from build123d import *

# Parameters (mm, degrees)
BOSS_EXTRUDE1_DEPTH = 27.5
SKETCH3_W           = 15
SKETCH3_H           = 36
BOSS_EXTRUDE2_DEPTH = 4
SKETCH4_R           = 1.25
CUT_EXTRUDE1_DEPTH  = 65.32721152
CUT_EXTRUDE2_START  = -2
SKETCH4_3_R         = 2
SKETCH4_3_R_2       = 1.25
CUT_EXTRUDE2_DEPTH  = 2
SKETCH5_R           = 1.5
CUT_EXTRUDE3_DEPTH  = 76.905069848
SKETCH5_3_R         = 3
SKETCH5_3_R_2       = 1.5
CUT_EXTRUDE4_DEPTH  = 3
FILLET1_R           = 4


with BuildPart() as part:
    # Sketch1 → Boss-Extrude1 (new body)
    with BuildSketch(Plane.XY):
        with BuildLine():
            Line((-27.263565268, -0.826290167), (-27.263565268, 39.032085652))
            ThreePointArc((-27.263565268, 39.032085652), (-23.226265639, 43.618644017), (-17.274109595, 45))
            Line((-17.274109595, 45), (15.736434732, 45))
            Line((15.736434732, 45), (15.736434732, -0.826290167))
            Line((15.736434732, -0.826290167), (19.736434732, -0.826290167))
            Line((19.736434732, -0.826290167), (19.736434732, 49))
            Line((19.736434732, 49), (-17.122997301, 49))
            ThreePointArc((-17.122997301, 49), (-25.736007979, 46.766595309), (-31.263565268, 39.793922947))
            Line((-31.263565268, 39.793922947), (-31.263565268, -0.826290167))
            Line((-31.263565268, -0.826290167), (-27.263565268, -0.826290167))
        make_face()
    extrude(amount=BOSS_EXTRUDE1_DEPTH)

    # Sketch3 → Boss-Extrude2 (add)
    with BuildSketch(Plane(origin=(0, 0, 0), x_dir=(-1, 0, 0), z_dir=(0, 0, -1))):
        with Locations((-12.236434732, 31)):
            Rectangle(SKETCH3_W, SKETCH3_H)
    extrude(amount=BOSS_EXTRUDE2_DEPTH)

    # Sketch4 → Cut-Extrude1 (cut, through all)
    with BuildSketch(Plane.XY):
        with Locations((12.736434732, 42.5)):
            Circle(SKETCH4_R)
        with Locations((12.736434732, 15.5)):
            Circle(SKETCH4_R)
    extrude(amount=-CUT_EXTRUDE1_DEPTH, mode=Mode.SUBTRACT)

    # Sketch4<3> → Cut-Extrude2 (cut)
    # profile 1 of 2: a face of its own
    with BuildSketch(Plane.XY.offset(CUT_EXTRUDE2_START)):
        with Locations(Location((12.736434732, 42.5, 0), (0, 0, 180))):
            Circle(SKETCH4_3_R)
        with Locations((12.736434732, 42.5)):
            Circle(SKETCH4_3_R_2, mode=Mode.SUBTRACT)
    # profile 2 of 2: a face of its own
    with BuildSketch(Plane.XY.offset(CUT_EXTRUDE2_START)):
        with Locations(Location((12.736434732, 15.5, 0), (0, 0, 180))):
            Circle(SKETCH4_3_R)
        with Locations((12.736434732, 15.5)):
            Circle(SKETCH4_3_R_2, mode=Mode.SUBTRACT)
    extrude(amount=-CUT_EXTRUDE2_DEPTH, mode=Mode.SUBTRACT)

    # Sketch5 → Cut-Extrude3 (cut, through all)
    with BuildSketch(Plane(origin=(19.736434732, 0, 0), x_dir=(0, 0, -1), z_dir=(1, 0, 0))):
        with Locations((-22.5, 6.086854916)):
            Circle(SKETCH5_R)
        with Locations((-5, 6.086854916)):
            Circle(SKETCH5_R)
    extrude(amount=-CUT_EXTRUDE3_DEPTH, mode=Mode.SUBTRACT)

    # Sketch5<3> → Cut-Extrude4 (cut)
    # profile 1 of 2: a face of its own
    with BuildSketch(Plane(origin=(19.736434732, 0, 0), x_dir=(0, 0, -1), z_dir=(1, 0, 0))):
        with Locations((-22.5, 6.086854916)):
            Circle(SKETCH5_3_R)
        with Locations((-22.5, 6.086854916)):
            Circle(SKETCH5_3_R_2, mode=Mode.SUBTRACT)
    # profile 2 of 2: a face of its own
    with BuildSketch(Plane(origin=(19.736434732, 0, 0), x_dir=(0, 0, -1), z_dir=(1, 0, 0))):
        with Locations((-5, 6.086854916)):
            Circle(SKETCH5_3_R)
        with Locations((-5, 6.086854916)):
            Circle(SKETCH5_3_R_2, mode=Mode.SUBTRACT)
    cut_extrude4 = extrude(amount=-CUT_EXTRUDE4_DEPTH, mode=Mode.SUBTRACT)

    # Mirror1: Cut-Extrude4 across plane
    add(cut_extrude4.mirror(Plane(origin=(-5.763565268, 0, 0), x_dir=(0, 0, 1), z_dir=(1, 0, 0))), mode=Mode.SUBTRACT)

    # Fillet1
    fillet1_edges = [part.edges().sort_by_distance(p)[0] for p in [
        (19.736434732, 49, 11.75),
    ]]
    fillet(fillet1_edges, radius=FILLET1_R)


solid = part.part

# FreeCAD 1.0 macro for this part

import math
import FreeCAD as App
import Part
import Sketcher
from FreeCAD import Vector


def edges_at(feature, points):
    """Names of the edges that pass closest to the given points."""
    edges = feature.Shape.Edges
    near = lambda p: min(range(len(edges)), key=lambda i: edges[i].distToShape(Part.Vertex(*p))[0])
    return sorted({f"Edge{near(p) + 1}" for p in points})


def add_polygon(sketch, points):
    """Adds a closed chain of lines whose ends are joined by coincident constraints."""
    first, n = sketch.GeometryCount, len(points)
    for a, b in zip(points, points[1:] + points[:1]):
        sketch.addGeometry(Part.LineSegment(App.Vector(*a, 0), App.Vector(*b, 0)), False)
    for i in range(n):
        sketch.addConstraint(Sketcher.Constraint("Coincident", first + i, 2, first + (i + 1) % n, 1))

doc = App.newDocument("Part")
params = doc.addObject("Spreadsheet::Sheet", "Params")
for row, (alias, value) in enumerate([
    ("sketch1_radius", "10 mm"),
    ("sketch1_radius2", "14 mm"),
    ("sketch1_width", "4 mm"),
    ("pad1_length", "27.5 mm"),
    ("sketch2_width", "15 mm"),
    ("sketch2_height", "36 mm"),
    ("pad2_length", "4 mm"),
    ("sketch3_diameter", "2.5 mm"),
    ("sketch4_diameter", "4 mm"),
    ("sketch4_diameter2", "2.5 mm"),
    ("pocket2_length", "2 mm"),
    ("sketch5_diameter", "3 mm"),
    ("sketch6_diameter", "6 mm"),
    ("sketch6_diameter2", "3 mm"),
    ("pocket4_length", "3 mm"),
    ("fillet_radius", "4 mm"),
], start=1):
    params.set(f"A{row}", alias)
    params.set(f"B{row}", "=" + value)
    params.setAlias(f"B{row}", alias)

body = doc.addObject("PartDesign::Body", "Body")

sketch1 = body.newObject("Sketcher::SketchObject", "Sketch")
sketch1.AttachmentSupport = (doc.getObject("XY_Plane"), [""])
sketch1.MapMode = "FlatFace"
sketch1.addGeometry([
    Part.LineSegment(Vector(-27.3, -0.8, 0), Vector(-27.3, 39, 0)),
    Part.ArcOfCircle(Part.Circle(Vector(-18.1, 35, 0), Vector(0, 0, 1), 10), math.radians(85), math.radians(156)),
    Part.LineSegment(Vector(-17.3, 45, 0), Vector(15.7, 45, 0)),
    Part.LineSegment(Vector(15.7, 45, 0), Vector(15.7, -0.8, 0)),
    Part.LineSegment(Vector(15.7, -0.8, 0), Vector(19.7, -0.8, 0)),
    Part.LineSegment(Vector(19.7, -0.8, 0), Vector(19.7, 49, 0)),
    Part.LineSegment(Vector(19.7, 49, 0), Vector(-17.1, 49, 0)),
    Part.ArcOfCircle(Part.Circle(Vector(-18.1, 35, 0), Vector(0, 0, 1), 14), math.radians(86), math.radians(160)),
    Part.LineSegment(Vector(-31.3, 39.8, 0), Vector(-31.3, -0.8, 0)),
    Part.LineSegment(Vector(-31.3, -0.8, 0), Vector(-27.3, -0.8, 0)),
], False)
sketch1.addConstraint([
    Sketcher.Constraint("Coincident", 0, 2, 1, 2),
    Sketcher.Constraint("Coincident", 1, 1, 2, 1),
    Sketcher.Constraint("Coincident", 2, 2, 3, 1),
    Sketcher.Constraint("Coincident", 3, 2, 4, 1),
    Sketcher.Constraint("Coincident", 4, 2, 5, 1),
    Sketcher.Constraint("Coincident", 5, 2, 6, 1),
    Sketcher.Constraint("Coincident", 6, 2, 7, 1),
    Sketcher.Constraint("Coincident", 7, 2, 8, 1),
    Sketcher.Constraint("Coincident", 8, 2, 9, 1),
    Sketcher.Constraint("Coincident", 9, 2, 0, 1),
    Sketcher.Constraint("Vertical", 0),
    Sketcher.Constraint("Horizontal", 2),
    Sketcher.Constraint("Vertical", 3),
    Sketcher.Constraint("Horizontal", 4),
    Sketcher.Constraint("Vertical", 5),
    Sketcher.Constraint("Horizontal", 6),
    Sketcher.Constraint("Vertical", 8),
    Sketcher.Constraint("Horizontal", 9),
    Sketcher.Constraint("Coincident", 7, 3, 1, 3),
    Sketcher.Constraint("Horizontal", 4, 2, 8, 2),
    Sketcher.Constraint("Equal", 4, 9),
    Sketcher.Constraint("Radius", 1, 10.0),
    Sketcher.Constraint("Radius", 7, 14.0),
    Sketcher.Constraint("DistanceX", 4, 1, 4, 2, 4.0),
    Sketcher.Constraint("DistanceY", -1, 1, 1, 1, 45.0),
    Sketcher.Constraint("DistanceY", -1, 1, 5, 2, 49.0),
    Sketcher.Constraint("DistanceX", 0, 2, 2, 2, 43.0),
    Sketcher.Constraint("DistanceY", 3, 2, 3, 1, 45.82629),
    Sketcher.Constraint("DistanceX", 2, 1, 2, 2, 33.010544),
    Sketcher.Constraint("DistanceX", 6, 2, 6, 1, 36.859432),
    Sketcher.Constraint("DistanceX", 1, 1, -1, 1, 17.27411),
])
sketch1.setExpression("Constraints[21]", "Params.sketch1_radius")
sketch1.setExpression("Constraints[22]", "Params.sketch1_radius2")
sketch1.setExpression("Constraints[23]", "Params.sketch1_width")
pad1 = body.newObject("PartDesign::Pad", "Pad")
pad1.Profile = sketch1
pad1.setExpression("Length", "Params.pad1_length")

sketch2 = body.newObject("Sketcher::SketchObject", "Sketch001")
sketch2.AttachmentSupport = (doc.getObject("XY_Plane"), [""])
sketch2.MapMode = "FlatFace"
add_polygon(sketch2, [(20, 49), (20, 13), (5, 13), (5, 49)])
sketch2.addConstraint([
    Sketcher.Constraint("Vertical", 0),
    Sketcher.Constraint("Horizontal", 1),
    Sketcher.Constraint("Vertical", 2),
    Sketcher.Constraint("Horizontal", 3),
    Sketcher.Constraint("DistanceX", 1, 2, 1, 1, 15.0),
    Sketcher.Constraint("DistanceY", 0, 2, 0, 1, 36.0),
    Sketcher.Constraint("DistanceY", -1, 1, 0, 2, 13.0),
    Sketcher.Constraint("DistanceX", -1, 1, 0, 2, 19.736435),
])
sketch2.setExpression("Constraints[8]", "Params.sketch2_width")
sketch2.setExpression("Constraints[9]", "Params.sketch2_height")
pad2 = body.newObject("PartDesign::Pad", "Pad001")
pad2.Profile = sketch2
pad2.setExpression("Length", "Params.pad2_length")
pad2.Reversed = True

sketch3 = body.newObject("Sketcher::SketchObject", "Sketch002")
sketch3.AttachmentSupport = (doc.getObject("XY_Plane"), [""])
sketch3.MapMode = "FlatFace"
sketch3.addGeometry([
    Part.Circle(Vector(12.7, 42.5, 0), Vector(0, 0, 1), 1.2),
    Part.Circle(Vector(12.7, 15.5, 0), Vector(0, 0, 1), 1.2),
], False)
sketch3.addConstraint([
    Sketcher.Constraint("Equal", 0, 1),
    Sketcher.Constraint("Vertical", 0, 3, 1, 3),
    Sketcher.Constraint("Diameter", 0, 2.5),
    Sketcher.Constraint("DistanceY", 1, 3, 0, 3, 27.0),
    Sketcher.Constraint("DistanceY", -1, 1, 0, 3, 42.5),
    Sketcher.Constraint("DistanceX", -1, 1, 0, 3, 12.736435),
])
sketch3.setExpression("Constraints[2]", "Params.sketch3_diameter")
pocket1 = body.newObject("PartDesign::Pocket", "Pocket")
pocket1.Profile = sketch3
pocket1.Type = "ThroughAll"

sketch4 = body.newObject("Sketcher::SketchObject", "Sketch003")
sketch4.AttachmentSupport = (doc.getObject("XY_Plane"), [""])
sketch4.MapMode = "FlatFace"
sketch4.AttachmentOffset = App.Placement(Vector(0, 0, -2), App.Rotation())
sketch4.addGeometry([
    Part.Circle(Vector(12.7, 42.5, 0), Vector(0, 0, 1), 2),
    Part.Circle(Vector(12.7, 42.5, 0), Vector(0, 0, 1), 1.2),
    Part.Circle(Vector(12.7, 15.5, 0), Vector(0, 0, 1), 2),
    Part.Circle(Vector(12.7, 15.5, 0), Vector(0, 0, 1), 1.2),
], False)
sketch4.addConstraint([
    Sketcher.Constraint("Coincident", 1, 3, 0, 3),
    Sketcher.Constraint("Coincident", 3, 3, 2, 3),
    Sketcher.Constraint("Equal", 0, 2),
    Sketcher.Constraint("Equal", 1, 3),
    Sketcher.Constraint("Vertical", 1, 3, 2, 3),
    Sketcher.Constraint("Diameter", 0, 4.0),
    Sketcher.Constraint("Diameter", 1, 2.5),
    Sketcher.Constraint("DistanceY", 2, 3, 0, 3, 27.0),
    Sketcher.Constraint("DistanceY", -1, 1, 0, 3, 42.5),
    Sketcher.Constraint("DistanceX", -1, 1, 0, 3, 12.736435),
])
sketch4.setExpression("Constraints[5]", "Params.sketch4_diameter")
sketch4.setExpression("Constraints[6]", "Params.sketch4_diameter2")
pocket2 = body.newObject("PartDesign::Pocket", "Pocket001")
pocket2.Profile = sketch4
pocket2.setExpression("Length", "Params.pocket2_length")

sketch5 = body.newObject("Sketcher::SketchObject", "Sketch004")
sketch5.AttachmentSupport = (doc.getObject("YZ_Plane"), [""])
sketch5.MapMode = "FlatFace"
sketch5.AttachmentOffset = App.Placement(Vector(0, 0, 19.736435), App.Rotation())
sketch5.addGeometry([
    Part.Circle(Vector(6.1, 22.5, 0), Vector(0, 0, 1), 1.5),
    Part.Circle(Vector(6.1, 5, 0), Vector(0, 0, 1), 1.5),
], False)
sketch5.addConstraint([
    Sketcher.Constraint("Equal", 0, 1),
    Sketcher.Constraint("Vertical", 0, 3, 1, 3),
    Sketcher.Constraint("Diameter", 0, 3.0),
    Sketcher.Constraint("DistanceY", -1, 1, 1, 3, 5.0),
    Sketcher.Constraint("DistanceY", -1, 1, 0, 3, 22.5),
    Sketcher.Constraint("DistanceX", -1, 1, 0, 3, 6.086855),
])
sketch5.setExpression("Constraints[2]", "Params.sketch5_diameter")
pocket3 = body.newObject("PartDesign::Pocket", "Pocket002")
pocket3.Profile = sketch5
pocket3.Type = "ThroughAll"

sketch6 = body.newObject("Sketcher::SketchObject", "Sketch005")
sketch6.AttachmentSupport = (doc.getObject("YZ_Plane"), [""])
sketch6.MapMode = "FlatFace"
sketch6.AttachmentOffset = App.Placement(Vector(0, 0, 19.736435), App.Rotation())
sketch6.addGeometry([
    Part.Circle(Vector(6.1, 22.5, 0), Vector(0, 0, 1), 3),
    Part.Circle(Vector(6.1, 22.5, 0), Vector(0, 0, 1), 1.5),
    Part.Circle(Vector(6.1, 5, 0), Vector(0, 0, 1), 3),
    Part.Circle(Vector(6.1, 5, 0), Vector(0, 0, 1), 1.5),
], False)
sketch6.addConstraint([
    Sketcher.Constraint("Coincident", 1, 3, 0, 3),
    Sketcher.Constraint("Coincident", 3, 3, 2, 3),
    Sketcher.Constraint("Equal", 0, 2),
    Sketcher.Constraint("Equal", 1, 3),
    Sketcher.Constraint("Vertical", 1, 3, 2, 3),
    Sketcher.Constraint("Diameter", 0, 6.0),
    Sketcher.Constraint("Diameter", 1, 3.0),
    Sketcher.Constraint("DistanceY", -1, 1, 2, 3, 5.0),
    Sketcher.Constraint("DistanceY", -1, 1, 0, 3, 22.5),
    Sketcher.Constraint("DistanceX", -1, 1, 0, 3, 6.086855),
])
sketch6.setExpression("Constraints[5]", "Params.sketch6_diameter")
sketch6.setExpression("Constraints[6]", "Params.sketch6_diameter2")
pocket4 = body.newObject("PartDesign::Pocket", "Pocket003")
pocket4.Profile = sketch6
pocket4.setExpression("Length", "Params.pocket4_length")
doc.recompute()

datumplane = body.newObject("PartDesign::Plane", "DatumPlane")
datumplane.AttachmentSupport = (doc.getObject("YZ_Plane"), [""])
datumplane.MapMode = "FlatFace"
datumplane.AttachmentOffset = App.Placement(Vector(0, 0, -5.763565), App.Rotation())
mirrored = body.newObject("PartDesign::Mirrored", "Mirrored")
mirrored.Originals = [pocket4]
mirrored.MirrorPlane = (datumplane, [""])
body.Tip = mirrored
doc.recompute()

fillet = body.newObject("PartDesign::Fillet", "Fillet")
fillet.Base = (mirrored, edges_at(mirrored, [(19.736, 49, 11.75)]))
fillet.setExpression("Radius", "Params.fillet_radius")

doc.recompute()
